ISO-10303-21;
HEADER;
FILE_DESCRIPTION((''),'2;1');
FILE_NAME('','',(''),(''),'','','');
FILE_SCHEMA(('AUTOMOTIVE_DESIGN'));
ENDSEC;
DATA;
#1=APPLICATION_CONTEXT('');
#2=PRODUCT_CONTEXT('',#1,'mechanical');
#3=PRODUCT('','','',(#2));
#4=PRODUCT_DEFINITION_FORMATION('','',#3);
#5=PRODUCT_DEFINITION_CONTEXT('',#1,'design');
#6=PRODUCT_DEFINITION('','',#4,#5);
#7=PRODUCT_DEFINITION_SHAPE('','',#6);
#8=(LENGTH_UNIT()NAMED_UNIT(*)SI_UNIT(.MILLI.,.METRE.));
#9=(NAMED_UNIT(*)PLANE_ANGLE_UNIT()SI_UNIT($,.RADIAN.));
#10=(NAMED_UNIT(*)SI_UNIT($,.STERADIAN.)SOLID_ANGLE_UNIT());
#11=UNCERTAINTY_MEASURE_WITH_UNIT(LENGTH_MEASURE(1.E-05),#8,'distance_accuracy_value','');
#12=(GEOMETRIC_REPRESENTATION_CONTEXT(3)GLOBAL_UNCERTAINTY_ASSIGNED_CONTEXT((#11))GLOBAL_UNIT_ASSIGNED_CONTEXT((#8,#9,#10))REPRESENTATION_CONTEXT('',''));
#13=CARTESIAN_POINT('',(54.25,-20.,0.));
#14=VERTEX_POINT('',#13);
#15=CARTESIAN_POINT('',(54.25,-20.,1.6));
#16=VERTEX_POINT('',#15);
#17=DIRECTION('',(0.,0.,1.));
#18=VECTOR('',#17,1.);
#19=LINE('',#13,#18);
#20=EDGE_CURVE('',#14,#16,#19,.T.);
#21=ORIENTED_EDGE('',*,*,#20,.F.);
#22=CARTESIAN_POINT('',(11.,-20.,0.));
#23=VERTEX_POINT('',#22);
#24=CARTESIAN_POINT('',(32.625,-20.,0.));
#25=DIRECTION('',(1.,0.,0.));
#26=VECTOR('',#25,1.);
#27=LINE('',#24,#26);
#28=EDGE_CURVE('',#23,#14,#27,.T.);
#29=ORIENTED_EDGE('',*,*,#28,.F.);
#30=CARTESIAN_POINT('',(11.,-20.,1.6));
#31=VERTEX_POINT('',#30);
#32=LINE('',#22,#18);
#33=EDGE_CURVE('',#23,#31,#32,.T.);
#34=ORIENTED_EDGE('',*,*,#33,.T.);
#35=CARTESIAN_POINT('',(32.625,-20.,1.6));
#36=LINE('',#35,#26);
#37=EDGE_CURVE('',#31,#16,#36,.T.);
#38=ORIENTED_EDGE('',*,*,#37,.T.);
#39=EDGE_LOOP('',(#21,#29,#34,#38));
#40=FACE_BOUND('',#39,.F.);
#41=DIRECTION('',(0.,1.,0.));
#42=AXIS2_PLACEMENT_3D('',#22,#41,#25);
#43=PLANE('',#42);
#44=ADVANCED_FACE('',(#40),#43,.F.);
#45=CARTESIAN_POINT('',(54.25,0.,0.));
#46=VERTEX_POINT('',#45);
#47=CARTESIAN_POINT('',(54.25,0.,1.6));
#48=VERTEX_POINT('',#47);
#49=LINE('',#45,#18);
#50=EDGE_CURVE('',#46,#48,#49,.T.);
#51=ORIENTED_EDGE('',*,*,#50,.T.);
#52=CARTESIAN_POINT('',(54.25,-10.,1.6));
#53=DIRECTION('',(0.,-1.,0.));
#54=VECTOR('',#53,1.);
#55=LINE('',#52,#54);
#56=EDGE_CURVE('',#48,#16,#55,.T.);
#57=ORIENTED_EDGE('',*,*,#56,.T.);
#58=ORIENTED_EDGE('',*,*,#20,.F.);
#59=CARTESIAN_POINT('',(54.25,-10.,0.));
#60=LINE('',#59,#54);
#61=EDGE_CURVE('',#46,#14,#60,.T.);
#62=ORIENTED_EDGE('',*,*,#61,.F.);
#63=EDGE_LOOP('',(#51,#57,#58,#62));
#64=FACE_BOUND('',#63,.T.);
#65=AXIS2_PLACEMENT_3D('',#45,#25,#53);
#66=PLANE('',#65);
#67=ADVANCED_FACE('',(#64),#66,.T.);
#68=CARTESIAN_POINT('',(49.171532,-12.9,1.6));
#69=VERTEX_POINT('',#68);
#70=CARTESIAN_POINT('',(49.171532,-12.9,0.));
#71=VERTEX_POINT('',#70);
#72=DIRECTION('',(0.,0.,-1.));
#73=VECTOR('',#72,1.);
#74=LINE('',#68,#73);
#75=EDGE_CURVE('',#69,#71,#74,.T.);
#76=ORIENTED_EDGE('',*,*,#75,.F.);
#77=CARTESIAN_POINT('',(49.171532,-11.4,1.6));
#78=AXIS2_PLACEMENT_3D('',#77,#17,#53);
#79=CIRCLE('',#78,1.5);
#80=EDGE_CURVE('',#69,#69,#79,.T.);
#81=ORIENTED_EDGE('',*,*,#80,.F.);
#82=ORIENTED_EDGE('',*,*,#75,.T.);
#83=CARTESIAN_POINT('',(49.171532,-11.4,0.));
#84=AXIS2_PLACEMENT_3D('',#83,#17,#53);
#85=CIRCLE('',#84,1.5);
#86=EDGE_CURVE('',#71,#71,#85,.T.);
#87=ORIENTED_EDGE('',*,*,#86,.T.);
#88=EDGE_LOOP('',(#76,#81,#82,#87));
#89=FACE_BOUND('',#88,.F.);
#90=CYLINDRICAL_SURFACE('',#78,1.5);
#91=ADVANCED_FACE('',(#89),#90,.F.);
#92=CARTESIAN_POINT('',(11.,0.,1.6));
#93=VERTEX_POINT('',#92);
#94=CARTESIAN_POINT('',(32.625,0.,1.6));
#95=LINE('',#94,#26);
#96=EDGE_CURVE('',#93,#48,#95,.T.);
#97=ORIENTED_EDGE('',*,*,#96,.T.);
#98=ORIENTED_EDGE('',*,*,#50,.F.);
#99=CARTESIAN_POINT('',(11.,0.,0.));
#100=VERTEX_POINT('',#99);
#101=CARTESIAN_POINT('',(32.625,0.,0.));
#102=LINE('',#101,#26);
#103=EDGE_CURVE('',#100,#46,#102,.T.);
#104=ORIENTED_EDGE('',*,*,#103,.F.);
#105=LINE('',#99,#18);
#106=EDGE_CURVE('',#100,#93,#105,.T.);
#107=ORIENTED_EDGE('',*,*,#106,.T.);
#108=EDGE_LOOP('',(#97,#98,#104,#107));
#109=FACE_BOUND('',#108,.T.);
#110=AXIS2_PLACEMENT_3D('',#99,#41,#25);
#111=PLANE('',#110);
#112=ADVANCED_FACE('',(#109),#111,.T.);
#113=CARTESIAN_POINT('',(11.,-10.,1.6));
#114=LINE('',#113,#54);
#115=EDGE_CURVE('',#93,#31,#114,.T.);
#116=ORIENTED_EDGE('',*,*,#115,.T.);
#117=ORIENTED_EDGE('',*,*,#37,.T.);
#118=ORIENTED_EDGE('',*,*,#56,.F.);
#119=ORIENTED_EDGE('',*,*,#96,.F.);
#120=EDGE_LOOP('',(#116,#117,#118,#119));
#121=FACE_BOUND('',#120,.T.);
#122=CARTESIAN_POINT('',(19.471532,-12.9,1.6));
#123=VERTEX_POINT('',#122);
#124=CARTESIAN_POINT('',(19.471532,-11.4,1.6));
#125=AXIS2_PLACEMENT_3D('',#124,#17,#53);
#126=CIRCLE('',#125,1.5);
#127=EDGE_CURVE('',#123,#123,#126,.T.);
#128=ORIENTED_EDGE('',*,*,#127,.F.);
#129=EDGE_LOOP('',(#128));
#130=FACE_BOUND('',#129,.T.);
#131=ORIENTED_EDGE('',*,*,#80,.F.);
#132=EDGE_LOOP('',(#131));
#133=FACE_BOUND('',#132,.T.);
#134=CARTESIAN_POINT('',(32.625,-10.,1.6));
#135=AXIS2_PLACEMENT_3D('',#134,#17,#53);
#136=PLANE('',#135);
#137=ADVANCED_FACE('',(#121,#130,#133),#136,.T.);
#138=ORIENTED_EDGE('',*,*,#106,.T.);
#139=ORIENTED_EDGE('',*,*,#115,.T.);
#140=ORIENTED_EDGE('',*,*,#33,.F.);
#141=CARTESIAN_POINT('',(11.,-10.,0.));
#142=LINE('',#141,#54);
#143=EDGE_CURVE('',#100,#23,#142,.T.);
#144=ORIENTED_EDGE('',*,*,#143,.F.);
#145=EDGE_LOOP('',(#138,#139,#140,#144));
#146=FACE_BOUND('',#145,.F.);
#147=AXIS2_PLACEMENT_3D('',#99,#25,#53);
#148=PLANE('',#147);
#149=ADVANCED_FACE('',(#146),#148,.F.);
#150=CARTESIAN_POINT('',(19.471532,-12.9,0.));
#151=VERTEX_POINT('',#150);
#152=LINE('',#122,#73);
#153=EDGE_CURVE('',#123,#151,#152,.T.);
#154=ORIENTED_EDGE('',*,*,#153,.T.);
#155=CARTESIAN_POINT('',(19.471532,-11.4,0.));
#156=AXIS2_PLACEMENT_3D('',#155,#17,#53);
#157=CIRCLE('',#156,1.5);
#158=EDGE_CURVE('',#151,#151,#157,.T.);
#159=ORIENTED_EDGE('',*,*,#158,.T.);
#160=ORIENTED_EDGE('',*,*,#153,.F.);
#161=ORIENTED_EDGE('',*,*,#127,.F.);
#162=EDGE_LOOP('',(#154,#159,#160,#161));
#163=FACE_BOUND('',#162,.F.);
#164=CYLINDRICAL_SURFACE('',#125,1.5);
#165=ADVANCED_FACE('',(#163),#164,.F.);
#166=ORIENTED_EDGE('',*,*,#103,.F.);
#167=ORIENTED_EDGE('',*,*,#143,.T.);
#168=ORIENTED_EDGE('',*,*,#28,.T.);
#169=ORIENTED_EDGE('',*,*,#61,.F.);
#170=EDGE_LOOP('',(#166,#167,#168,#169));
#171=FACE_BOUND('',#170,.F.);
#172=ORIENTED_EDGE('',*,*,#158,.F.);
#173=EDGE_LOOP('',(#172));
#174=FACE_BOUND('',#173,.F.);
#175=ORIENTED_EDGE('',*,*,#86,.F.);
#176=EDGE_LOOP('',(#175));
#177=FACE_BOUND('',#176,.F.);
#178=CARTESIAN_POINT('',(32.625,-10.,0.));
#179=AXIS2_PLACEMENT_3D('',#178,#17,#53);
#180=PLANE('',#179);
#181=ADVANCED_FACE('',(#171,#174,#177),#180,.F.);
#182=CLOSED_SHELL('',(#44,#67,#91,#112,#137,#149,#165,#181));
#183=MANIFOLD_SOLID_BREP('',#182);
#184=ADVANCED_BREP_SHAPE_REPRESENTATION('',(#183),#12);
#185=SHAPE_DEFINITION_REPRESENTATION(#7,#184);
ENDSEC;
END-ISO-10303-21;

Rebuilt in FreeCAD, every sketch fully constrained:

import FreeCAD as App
import Part
import Sketcher

V = App.Vector
Q = App.Units.Quantity


def add_polygon(sketch, points):
    """Adds a closed chain of lines whose ends are joined by coincident constraints."""
    first, n = sketch.GeometryCount, len(points)
    for a, b in zip(points, points[1:] + points[:1]):
        sketch.addGeometry(Part.LineSegment(App.Vector(*a, 0), App.Vector(*b, 0)), False)
    for i in range(n):
        sketch.addConstraint(Sketcher.Constraint("Coincident", first + i, 2, first + (i + 1) % n, 1))

doc = App.newDocument("Part")
body = doc.addObject("PartDesign::Body", "Body")
body.AllowCompound = True

sketch1 = body.newObject("Sketcher::SketchObject", "Sketch")
sketch1.AttachmentSupport = (doc.getObject("XY_Plane"), [""])
sketch1.MapMode = "FlatFace"
sketch1.AttachmentOffset = App.Placement(V(0, 0, 1.6), App.Rotation())
sketch1.addGeometry([
    Part.Circle(V(49.2, -11.4, 0), V(0, 0, 1), 1.5),
    Part.Circle(V(19.5, -11.4, 0), V(0, 0, 1), 1.5),
], False)
sketch1.addConstraint([
    Sketcher.Constraint("Equal", 0, 1),
    Sketcher.Constraint("Horizontal", 0, 3, 1, 3),
    Sketcher.Constraint("Diameter", 0, Q("3 mm")),
    Sketcher.Constraint("DistanceY", 0, 3, -1, 1, Q("11.4 mm")),
    Sketcher.Constraint("DistanceX", 1, 3, 0, 3, Q("29.7 mm")),
    Sketcher.Constraint("DistanceX", -1, 1, 1, 3, Q("19.471532 mm")),
])
pad1 = body.newObject("PartDesign::Pad", "Pad")
pad1.Profile = sketch1
pad1.Length = 2
pad1.Reversed = True
body2 = doc.addObject("PartDesign::Body", "Body001")

sketch2 = body2.newObject("Sketcher::SketchObject", "Sketch001")
sketch2.AttachmentSupport = (doc.getObject("XY_Plane001"), [""])
sketch2.MapMode = "FlatFace"
add_polygon(sketch2, [(54, 0), (11, 0), (11, -20), (54, -20)])
sketch2.addConstraint([
    Sketcher.Constraint("Horizontal", 0),
    Sketcher.Constraint("Vertical", 1),
    Sketcher.Constraint("Horizontal", 2),
    Sketcher.Constraint("Vertical", 3),
    Sketcher.Constraint("PointOnObject", 0, 2, -1),
    Sketcher.Constraint("DistanceY", 1, 2, 1, 1, Q("20 mm")),
    Sketcher.Constraint("DistanceX", -1, 1, 0, 2, Q("11 mm")),
    Sketcher.Constraint("DistanceX", 0, 2, 0, 1, Q("43.25 mm")),
])
pad2 = body2.newObject("PartDesign::Pad", "Pad001")
pad2.Profile = sketch2
pad2.Length = 1.6
doc.recompute()

boolean = body2.newObject("PartDesign::Boolean", "Boolean")
boolean.Type = "Cut"
boolean.addObjects([body])

doc.recompute()
